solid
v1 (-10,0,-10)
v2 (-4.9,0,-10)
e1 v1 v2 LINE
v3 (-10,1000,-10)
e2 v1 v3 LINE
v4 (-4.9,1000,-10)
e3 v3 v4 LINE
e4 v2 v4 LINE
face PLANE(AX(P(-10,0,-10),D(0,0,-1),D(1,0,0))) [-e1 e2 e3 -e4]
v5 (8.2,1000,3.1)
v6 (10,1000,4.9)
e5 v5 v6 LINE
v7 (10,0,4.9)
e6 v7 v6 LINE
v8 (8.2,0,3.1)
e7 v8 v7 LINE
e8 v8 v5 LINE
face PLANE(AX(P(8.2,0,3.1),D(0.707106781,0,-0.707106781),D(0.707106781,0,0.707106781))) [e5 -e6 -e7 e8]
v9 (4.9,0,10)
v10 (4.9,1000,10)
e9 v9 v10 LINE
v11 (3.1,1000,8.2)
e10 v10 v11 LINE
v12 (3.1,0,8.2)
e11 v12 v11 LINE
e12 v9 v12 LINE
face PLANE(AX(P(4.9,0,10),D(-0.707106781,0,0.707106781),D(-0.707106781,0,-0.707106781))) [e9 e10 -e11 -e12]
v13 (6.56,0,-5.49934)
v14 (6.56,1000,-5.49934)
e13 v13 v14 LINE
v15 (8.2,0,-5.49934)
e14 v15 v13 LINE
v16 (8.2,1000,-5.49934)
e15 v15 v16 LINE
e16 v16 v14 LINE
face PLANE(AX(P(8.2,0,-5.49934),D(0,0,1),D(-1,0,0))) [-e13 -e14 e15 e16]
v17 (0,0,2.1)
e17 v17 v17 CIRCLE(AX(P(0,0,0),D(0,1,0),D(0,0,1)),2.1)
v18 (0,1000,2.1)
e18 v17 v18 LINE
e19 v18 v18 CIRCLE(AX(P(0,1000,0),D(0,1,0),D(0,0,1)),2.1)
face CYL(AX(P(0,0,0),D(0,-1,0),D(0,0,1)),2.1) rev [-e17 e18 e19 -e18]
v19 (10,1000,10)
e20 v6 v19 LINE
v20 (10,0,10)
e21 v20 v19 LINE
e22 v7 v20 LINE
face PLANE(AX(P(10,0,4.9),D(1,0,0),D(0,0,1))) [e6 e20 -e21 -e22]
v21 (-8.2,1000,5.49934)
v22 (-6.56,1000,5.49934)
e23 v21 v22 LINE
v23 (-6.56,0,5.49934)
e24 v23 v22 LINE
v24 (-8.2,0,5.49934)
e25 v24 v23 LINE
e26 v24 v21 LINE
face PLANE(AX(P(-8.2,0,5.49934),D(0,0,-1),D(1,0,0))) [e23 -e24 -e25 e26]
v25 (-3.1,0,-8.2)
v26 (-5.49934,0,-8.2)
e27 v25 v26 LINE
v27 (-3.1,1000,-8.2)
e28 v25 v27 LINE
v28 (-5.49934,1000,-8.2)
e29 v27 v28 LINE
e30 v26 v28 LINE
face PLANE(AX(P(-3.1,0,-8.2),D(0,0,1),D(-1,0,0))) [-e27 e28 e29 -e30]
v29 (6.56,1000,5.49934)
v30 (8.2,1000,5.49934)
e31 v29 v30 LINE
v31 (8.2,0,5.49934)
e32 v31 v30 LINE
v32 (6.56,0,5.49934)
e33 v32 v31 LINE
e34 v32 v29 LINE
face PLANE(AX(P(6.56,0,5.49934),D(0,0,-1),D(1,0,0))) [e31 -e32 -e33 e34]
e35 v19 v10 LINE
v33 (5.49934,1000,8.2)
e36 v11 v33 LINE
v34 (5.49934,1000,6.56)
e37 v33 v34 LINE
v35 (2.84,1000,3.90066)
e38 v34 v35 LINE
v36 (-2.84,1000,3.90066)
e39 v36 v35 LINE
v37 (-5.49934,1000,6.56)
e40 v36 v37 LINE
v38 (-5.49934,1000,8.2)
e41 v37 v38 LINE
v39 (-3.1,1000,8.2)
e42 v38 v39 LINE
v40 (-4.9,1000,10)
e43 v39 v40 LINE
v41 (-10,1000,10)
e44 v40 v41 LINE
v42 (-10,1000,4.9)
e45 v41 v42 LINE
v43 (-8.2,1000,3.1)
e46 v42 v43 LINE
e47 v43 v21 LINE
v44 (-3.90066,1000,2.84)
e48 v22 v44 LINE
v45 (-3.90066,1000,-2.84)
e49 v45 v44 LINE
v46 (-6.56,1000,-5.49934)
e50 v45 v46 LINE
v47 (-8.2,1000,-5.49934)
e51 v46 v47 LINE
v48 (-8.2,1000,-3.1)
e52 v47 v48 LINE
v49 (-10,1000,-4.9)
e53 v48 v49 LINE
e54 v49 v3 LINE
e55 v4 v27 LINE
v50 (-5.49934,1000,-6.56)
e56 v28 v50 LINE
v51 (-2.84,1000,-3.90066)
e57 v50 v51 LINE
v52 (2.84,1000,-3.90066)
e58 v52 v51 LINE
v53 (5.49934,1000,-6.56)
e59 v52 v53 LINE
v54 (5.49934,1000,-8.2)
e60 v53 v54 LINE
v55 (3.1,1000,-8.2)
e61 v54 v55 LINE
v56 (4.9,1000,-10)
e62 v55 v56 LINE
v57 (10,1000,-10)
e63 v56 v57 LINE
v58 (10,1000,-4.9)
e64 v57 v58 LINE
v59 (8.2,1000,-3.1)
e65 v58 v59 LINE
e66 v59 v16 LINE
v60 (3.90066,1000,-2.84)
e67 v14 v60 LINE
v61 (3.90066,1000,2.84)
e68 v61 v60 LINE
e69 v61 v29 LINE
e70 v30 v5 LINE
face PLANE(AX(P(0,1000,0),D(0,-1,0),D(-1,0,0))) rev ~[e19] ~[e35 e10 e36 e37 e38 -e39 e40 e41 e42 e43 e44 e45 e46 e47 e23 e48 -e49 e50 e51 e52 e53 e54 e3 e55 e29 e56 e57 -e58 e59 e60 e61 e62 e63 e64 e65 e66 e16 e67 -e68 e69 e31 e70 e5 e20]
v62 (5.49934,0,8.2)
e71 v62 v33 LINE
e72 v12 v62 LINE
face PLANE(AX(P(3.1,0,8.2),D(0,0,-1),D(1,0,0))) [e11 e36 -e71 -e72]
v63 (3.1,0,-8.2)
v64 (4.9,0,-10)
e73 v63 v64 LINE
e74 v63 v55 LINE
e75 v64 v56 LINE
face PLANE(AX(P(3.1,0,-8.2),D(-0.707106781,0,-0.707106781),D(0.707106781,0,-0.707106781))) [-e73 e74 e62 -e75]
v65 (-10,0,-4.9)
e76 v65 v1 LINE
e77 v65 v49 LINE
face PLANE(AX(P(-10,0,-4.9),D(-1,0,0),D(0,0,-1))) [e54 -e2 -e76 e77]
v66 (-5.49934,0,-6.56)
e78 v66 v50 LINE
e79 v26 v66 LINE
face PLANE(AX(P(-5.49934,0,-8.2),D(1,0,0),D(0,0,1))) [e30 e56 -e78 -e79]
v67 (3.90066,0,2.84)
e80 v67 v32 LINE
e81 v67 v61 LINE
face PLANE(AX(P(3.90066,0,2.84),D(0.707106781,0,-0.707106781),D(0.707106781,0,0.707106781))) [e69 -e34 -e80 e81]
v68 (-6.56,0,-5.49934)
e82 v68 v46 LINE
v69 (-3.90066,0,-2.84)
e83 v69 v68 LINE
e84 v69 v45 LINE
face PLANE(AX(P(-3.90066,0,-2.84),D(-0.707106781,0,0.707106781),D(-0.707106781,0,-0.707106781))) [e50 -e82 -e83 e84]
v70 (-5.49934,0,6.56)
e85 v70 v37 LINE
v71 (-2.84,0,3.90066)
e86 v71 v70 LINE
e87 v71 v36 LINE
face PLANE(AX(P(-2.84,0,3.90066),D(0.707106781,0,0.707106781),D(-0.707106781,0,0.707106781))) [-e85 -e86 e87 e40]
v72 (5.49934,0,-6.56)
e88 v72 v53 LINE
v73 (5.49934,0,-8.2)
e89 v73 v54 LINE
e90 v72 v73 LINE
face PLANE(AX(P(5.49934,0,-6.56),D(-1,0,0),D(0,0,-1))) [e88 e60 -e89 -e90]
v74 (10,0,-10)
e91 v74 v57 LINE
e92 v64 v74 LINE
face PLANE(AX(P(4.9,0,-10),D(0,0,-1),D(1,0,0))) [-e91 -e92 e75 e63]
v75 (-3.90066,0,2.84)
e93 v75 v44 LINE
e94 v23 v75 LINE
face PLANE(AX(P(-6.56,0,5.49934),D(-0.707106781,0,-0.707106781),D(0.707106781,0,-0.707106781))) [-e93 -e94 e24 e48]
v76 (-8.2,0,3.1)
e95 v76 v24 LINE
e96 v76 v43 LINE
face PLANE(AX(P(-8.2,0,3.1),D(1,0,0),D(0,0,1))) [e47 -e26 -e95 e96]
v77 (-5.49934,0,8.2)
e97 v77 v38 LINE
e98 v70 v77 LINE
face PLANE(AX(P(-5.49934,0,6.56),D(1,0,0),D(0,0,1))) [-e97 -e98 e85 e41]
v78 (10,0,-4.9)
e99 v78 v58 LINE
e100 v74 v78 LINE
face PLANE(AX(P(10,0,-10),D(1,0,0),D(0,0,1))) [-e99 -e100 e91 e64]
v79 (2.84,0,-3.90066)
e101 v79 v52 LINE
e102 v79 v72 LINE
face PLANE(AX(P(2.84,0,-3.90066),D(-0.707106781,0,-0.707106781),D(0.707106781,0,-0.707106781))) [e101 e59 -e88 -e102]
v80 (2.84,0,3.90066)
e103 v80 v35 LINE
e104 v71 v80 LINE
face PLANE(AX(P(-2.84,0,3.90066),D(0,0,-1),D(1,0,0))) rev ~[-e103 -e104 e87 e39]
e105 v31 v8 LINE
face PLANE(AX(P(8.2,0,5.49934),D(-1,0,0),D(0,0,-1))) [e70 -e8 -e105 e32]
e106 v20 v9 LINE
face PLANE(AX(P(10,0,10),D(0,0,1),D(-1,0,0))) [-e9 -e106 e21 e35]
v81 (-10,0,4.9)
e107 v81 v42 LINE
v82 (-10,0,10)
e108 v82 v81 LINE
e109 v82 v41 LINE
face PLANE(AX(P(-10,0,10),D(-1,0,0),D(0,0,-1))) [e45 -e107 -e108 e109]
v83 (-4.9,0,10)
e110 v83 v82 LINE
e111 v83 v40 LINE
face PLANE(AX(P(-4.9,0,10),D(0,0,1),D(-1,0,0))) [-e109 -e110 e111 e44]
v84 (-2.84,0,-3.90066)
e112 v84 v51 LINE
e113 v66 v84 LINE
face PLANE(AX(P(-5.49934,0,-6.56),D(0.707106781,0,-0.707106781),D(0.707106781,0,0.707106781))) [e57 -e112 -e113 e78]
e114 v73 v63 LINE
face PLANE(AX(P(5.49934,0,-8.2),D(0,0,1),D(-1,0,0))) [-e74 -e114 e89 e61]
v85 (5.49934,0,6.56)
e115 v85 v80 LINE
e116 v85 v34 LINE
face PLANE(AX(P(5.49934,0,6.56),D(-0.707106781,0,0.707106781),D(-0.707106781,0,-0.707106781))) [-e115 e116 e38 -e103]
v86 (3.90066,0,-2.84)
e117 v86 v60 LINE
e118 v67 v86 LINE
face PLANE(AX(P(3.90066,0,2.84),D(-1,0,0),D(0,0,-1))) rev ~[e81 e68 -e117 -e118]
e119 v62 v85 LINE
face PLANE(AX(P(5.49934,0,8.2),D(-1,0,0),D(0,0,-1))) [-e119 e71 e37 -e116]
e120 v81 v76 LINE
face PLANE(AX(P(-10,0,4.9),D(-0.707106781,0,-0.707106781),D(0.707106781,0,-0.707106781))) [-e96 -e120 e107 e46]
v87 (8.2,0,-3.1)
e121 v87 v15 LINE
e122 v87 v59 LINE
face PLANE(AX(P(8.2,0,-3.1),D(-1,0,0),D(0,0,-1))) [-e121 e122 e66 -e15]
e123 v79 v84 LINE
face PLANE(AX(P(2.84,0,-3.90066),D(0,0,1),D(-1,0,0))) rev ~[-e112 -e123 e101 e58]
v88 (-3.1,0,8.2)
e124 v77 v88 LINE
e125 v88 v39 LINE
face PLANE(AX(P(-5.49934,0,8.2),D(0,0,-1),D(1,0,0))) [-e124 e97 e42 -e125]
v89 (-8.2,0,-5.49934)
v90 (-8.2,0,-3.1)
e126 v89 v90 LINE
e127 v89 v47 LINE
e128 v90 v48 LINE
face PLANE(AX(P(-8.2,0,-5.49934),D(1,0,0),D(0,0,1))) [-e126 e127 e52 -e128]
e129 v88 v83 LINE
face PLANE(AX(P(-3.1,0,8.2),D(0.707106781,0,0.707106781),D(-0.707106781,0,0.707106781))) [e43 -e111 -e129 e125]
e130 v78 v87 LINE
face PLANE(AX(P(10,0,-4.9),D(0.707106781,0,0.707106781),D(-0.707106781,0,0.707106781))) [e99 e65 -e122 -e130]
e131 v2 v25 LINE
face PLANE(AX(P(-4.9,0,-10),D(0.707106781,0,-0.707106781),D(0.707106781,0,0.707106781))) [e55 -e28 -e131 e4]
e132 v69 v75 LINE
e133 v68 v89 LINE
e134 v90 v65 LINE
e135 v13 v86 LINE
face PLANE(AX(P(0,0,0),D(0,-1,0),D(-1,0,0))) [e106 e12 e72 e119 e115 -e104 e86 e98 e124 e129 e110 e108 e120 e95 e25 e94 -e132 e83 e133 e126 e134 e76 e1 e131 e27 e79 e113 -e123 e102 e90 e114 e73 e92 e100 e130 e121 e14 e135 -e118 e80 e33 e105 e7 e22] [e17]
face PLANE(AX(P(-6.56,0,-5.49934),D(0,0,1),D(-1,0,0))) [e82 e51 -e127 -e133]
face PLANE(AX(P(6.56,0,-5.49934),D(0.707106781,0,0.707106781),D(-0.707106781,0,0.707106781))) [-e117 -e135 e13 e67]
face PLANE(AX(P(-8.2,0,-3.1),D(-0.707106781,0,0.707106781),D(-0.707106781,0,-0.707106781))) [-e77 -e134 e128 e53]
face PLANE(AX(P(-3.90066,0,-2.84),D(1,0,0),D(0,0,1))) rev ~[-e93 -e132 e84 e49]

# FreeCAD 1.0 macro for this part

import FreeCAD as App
import Part
import Sketcher
from FreeCAD import Vector
Q = App.Units.Quantity


def add_polygon(sketch, points):
    """Adds a closed chain of lines whose ends are joined by coincident constraints."""
    first, n = sketch.GeometryCount, len(points)
    for a, b in zip(points, points[1:] + points[:1]):
        sketch.addGeometry(Part.LineSegment(App.Vector(*a, 0), App.Vector(*b, 0)), False)
    for i in range(n):
        sketch.addConstraint(Sketcher.Constraint("Coincident", first + i, 2, first + (i + 1) % n, 1))

doc = App.newDocument("Part")
params = doc.addObject("Spreadsheet::Sheet", "Params")
for row, (alias, value) in enumerate([
    ("sketch1_diameter", "4.2 mm"),
    ("sketch1_width", "5.1 mm"),
    ("sketch1_width2", "1.64 mm"),
    ("sketch1_width3", "5.68 mm"),
    ("pad1_length", "1000 mm"),
], start=1):
    params.set(f"A{row}", alias)
    params.set(f"B{row}", "=" + value)
    params.setAlias(f"B{row}", alias)

body = doc.addObject("PartDesign::Body", "Body")

# Sketch on XZ plane
sketch1 = doc.addObject("Sketcher::SketchObject", "Sketch")
body.addObject(sketch1)
sketch1.AttachmentSupport = (doc.XZ_Plane, [""])
sketch1.MapMode = "FlatFace"
add_polygon(sketch1, [(-4.9, -10), (-10, -10), (-10, -4.9), (-8.2, -3.1), (-8.2, -5.5), (-6.6, -5.5), (-3.9, -2.8), (-3.9, 2.8), (-6.6, 5.5), (-8.2, 5.5), (-8.2, 3.1), (-10, 4.9), (-10, 10), (-4.9, 10), (-3.1, 8.2), (-5.5, 8.2), (-5.5, 6.6), (-2.8, 3.9), (2.8, 3.9), (5.5, 6.6), (5.5, 8.2), (3.1, 8.2), (4.9, 10), (10, 10), (10, 4.9), (8.2, 3.1), (8.2, 5.5), (6.6, 5.5), (3.9, 2.8), (3.9, -2.8), (6.6, -5.5), (8.2, -5.5), (8.2, -3.1), (10, -4.9), (10, -10), (4.9, -10), (3.1, -8.2), (5.5, -8.2), (5.5, -6.6), (2.8, -3.9), (-2.8, -3.9), (-5.5, -6.6), (-5.5, -8.2), (-3.1, -8.2)])  # lines 0-43
sketch1.addGeometry(Part.Circle(Vector(0, 0, 0), Vector(0, 0, 1), 2.1), False)  # 44
sketch1.addConstraint([
    Sketcher.Constraint("Horizontal", 0),
    Sketcher.Constraint("Vertical", 1),
    Sketcher.Constraint("Vertical", 3),
    Sketcher.Constraint("Horizontal", 4),
    Sketcher.Constraint("Vertical", 6),
    Sketcher.Constraint("Horizontal", 8),
    Sketcher.Constraint("Vertical", 9),
    Sketcher.Constraint("Vertical", 11),
    Sketcher.Constraint("Horizontal", 12),
    Sketcher.Constraint("Horizontal", 14),
    Sketcher.Constraint("Vertical", 15),
    Sketcher.Constraint("Horizontal", 17),
    Sketcher.Constraint("Vertical", 19),
    Sketcher.Constraint("Horizontal", 20),
    Sketcher.Constraint("Horizontal", 22),
    Sketcher.Constraint("Vertical", 23),
    Sketcher.Constraint("Vertical", 25),
    Sketcher.Constraint("Horizontal", 26),
    Sketcher.Constraint("Vertical", 28),
    Sketcher.Constraint("Horizontal", 30),
    Sketcher.Constraint("Vertical", 31),
    Sketcher.Constraint("Vertical", 33),
    Sketcher.Constraint("Horizontal", 34),
    Sketcher.Constraint("Horizontal", 36),
    Sketcher.Constraint("Vertical", 37),
    Sketcher.Constraint("Horizontal", 39),
    Sketcher.Constraint("Vertical", 41),
    Sketcher.Constraint("Horizontal", 42),
    Sketcher.Constraint("Coincident", 44, 3, -1, 1),
    Sketcher.Constraint("Symmetric", 0, 2, 22, 2, -1, 1),
    Sketcher.Constraint("Symmetric", 2, 2, 24, 2, -1, 1),
    Sketcher.Constraint("Symmetric", 4, 2, 26, 2, -1, 1),
    Sketcher.Constraint("Symmetric", 5, 2, 27, 2, -1, 1),
    Sketcher.Constraint("Symmetric", 7, 2, 29, 2, -1, 1),
    Sketcher.Constraint("Symmetric", 9, 2, 31, 2, -1, 1),
    Sketcher.Constraint("Symmetric", 10, 2, 32, 2, -1, 1),
    Sketcher.Constraint("Symmetric", 12, 2, 34, 2, -1, 1),
    Sketcher.Constraint("Symmetric", 13, 2, 35, 2, -1, 1),
    Sketcher.Constraint("Symmetric", 15, 2, 37, 2, -1, 1),
    Sketcher.Constraint("Symmetric", 16, 2, 38, 2, -1, 1),
    Sketcher.Constraint("Symmetric", 18, 2, 40, 2, -1, 1),
    Sketcher.Constraint("Symmetric", 20, 2, 42, 2, -1, 1),
    Sketcher.Constraint("Symmetric", 15, 2, 18, 2, -2),
    Sketcher.Constraint("Symmetric", 13, 2, 20, 2, -2),
    Sketcher.Constraint("Symmetric", 12, 2, 21, 2, -2),
    Sketcher.Constraint("Symmetric", 10, 2, 23, 2, -2),
    Sketcher.Constraint("Symmetric", 9, 2, 24, 2, -2),
    Sketcher.Constraint("Symmetric", 7, 2, 26, 2, -2),
    Sketcher.Constraint("Parallel", 2, 5),
    Sketcher.Constraint("Perpendicular", 5, 7),
    Sketcher.Constraint("Parallel", 7, 10),
    Sketcher.Constraint("Parallel", 10, 13),
    Sketcher.Constraint("Parallel", 13, 16),
    Sketcher.Constraint("Perpendicular", 16, 18),
    Sketcher.Constraint("Parallel", 18, 21),
    Sketcher.Constraint("Perpendicular", 27, 29),
    Sketcher.Constraint("Perpendicular", 38, 40),
    Sketcher.Constraint("Parallel", 40, 43),
    Sketcher.Constraint("Equal", 34, 1),
    Sketcher.Constraint("Equal", 42, 3),
    Sketcher.Constraint("Equal", 39, 6),
    Sketcher.Constraint("Equal", 30, 15),
    Sketcher.Constraint("Equal", 10, 13),
    Sketcher.Constraint("Equal", 7, 16),
    Sketcher.Constraint("Diameter", 44, Q("4.2 mm")),
    Sketcher.Constraint("DistanceX", 0, 2, 0, 1, Q("5.1 mm")),
    Sketcher.Constraint("DistanceX", 0, 2, -1, 1, Q("10 mm")),
    Sketcher.Constraint("DistanceY", 2, 2, 10, 2, Q("8 mm")),
    Sketcher.Constraint("DistanceX", 4, 1, 4, 2, Q("1.64 mm")),
    Sketcher.Constraint("DistanceX", 17, 1, 17, 2, Q("5.68 mm")),
    Sketcher.Constraint("DistanceX", 14, 2, 14, 1, Q("2.39934 mm")),
])
sketch1.setExpression("Constraints[108]", "Params.sketch1_diameter")
sketch1.setExpression("Constraints[109]", "Params.sketch1_width")
sketch1.setExpression("Constraints[112]", "Params.sketch1_width2")
sketch1.setExpression("Constraints[113]", "Params.sketch1_width3")
pad1 = doc.addObject("PartDesign::Pad", "Pad")
body.addObject(pad1)
pad1.Profile = sketch1
pad1.setExpression("Length", "Params.pad1_length")
pad1.Reversed = True

doc.recompute()
